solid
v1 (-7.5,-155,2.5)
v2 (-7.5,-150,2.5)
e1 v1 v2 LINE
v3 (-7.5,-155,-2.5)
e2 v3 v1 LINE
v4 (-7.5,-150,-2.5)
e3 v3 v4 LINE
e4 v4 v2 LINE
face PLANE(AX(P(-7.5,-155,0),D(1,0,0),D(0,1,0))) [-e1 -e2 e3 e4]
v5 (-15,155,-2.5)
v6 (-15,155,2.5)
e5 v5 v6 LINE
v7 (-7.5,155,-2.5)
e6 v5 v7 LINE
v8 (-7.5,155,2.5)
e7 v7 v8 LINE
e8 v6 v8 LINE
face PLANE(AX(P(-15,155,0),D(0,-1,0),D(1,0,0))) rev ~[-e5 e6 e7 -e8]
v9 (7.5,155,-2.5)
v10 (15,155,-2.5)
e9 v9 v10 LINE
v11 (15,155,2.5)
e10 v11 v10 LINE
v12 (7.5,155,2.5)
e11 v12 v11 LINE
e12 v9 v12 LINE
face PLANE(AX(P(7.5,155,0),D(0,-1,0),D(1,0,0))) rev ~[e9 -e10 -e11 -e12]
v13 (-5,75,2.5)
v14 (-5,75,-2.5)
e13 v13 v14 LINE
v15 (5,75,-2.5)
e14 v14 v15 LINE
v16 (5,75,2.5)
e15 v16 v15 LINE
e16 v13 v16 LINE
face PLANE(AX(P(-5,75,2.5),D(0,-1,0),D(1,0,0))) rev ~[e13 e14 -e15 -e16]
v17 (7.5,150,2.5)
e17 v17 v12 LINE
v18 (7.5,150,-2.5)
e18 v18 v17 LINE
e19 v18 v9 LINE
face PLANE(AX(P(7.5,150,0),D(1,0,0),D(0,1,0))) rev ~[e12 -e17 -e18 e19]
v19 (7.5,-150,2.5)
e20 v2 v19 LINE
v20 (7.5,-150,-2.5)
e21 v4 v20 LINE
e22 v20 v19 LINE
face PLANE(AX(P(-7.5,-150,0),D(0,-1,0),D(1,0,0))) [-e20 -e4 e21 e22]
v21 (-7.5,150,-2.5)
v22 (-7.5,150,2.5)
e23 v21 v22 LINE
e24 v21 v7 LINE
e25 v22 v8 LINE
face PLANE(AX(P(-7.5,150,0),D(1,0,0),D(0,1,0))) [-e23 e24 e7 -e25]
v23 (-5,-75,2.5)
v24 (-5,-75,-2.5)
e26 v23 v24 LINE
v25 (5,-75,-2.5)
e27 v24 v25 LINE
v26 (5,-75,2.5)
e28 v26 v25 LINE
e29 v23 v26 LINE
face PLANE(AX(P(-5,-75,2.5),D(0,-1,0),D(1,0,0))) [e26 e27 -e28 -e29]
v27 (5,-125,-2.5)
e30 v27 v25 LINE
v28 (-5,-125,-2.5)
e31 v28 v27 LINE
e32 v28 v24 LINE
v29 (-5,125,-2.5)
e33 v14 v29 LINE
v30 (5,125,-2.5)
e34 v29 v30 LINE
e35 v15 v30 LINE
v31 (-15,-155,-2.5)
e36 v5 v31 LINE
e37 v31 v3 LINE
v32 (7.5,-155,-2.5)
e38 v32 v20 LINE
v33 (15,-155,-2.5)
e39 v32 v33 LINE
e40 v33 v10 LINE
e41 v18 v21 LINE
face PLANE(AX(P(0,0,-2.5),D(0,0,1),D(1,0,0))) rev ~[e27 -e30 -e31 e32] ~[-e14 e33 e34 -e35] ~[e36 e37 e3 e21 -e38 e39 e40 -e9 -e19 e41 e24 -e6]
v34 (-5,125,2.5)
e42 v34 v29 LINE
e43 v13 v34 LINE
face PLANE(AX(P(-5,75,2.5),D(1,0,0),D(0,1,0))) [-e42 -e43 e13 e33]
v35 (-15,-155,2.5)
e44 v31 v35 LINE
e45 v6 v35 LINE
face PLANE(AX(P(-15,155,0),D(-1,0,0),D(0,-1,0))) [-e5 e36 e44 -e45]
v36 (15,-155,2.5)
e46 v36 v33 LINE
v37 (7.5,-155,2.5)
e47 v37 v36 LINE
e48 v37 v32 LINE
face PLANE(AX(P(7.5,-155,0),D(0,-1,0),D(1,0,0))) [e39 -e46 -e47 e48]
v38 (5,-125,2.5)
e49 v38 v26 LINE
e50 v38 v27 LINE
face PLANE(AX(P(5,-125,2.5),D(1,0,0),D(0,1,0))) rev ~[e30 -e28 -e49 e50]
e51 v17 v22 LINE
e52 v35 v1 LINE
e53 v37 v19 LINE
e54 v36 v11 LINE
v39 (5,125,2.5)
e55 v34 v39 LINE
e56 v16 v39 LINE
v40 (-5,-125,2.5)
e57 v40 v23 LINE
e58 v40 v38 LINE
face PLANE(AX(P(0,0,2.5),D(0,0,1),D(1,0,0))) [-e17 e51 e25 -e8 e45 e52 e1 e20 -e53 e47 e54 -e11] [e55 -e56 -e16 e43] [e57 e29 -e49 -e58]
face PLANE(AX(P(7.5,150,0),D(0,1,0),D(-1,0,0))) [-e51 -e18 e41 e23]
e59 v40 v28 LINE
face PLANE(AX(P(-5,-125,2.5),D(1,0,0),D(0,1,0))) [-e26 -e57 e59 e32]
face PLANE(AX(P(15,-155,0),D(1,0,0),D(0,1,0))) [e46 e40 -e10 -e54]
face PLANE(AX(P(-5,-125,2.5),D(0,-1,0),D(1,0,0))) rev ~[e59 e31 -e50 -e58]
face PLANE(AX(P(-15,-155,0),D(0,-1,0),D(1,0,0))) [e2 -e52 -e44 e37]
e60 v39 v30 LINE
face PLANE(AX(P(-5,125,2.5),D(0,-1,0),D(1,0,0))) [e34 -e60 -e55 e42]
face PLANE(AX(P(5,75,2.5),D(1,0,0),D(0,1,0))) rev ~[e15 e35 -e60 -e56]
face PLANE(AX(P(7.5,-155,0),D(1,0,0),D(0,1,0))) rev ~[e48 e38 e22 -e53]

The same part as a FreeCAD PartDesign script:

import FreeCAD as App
import Part
import Sketcher
Q = App.Units.Quantity


def add_polygon(sketch, points):
    """Adds a closed chain of lines whose ends are joined by coincident constraints."""
    first, n = sketch.GeometryCount, len(points)
    for a, b in zip(points, points[1:] + points[:1]):
        sketch.addGeometry(Part.LineSegment(App.Vector(*a, 0), App.Vector(*b, 0)), False)
    for i in range(n):
        sketch.addConstraint(Sketcher.Constraint("Coincident", first + i, 2, first + (i + 1) % n, 1))

doc = App.newDocument("Part")
params = doc.addObject("Spreadsheet::Sheet", "Params")
for row, (alias, value) in enumerate([
    ("sketch1_width", "15 mm"),
    ("sketch1_height", "5 mm"),
    ("sketch1_height2", "310 mm"),
    ("sketch1_width2", "7.5 mm"),
    ("pad1_length", "5 mm"),
    ("sketch2_width", "10 mm"),
    ("sketch2_height", "50 mm"),
    ("pocket1_length", "10 mm"),
    ("sketch3_width", "10 mm"),
    ("sketch3_height", "50 mm"),
    ("pocket2_length", "10 mm"),
], start=1):
    params.set(f"A{row}", alias)
    params.set(f"B{row}", "=" + value)
    params.setAlias(f"B{row}", alias)

body = doc.addObject("PartDesign::Body", "Body")

sketch1 = body.newObject("Sketcher::SketchObject", "Sketch")
sketch1.AttachmentSupport = (doc.getObject("XY_Plane"), [""])
sketch1.MapMode = "FlatFace"
add_polygon(sketch1, [(15, 155), (8, 155), (8, 150), (-8, 150), (-8, 155), (-15, 155), (-15, -155), (-8, -155), (-8, -150), (8, -150), (8, -155), (15, -155)])
sketch1.addConstraint([
    Sketcher.Constraint("Horizontal", 0),
    Sketcher.Constraint("Vertical", 1),
    Sketcher.Constraint("Horizontal", 2),
    Sketcher.Constraint("Vertical", 3),
    Sketcher.Constraint("Horizontal", 4),
    Sketcher.Constraint("Vertical", 5),
    Sketcher.Constraint("Horizontal", 6),
    Sketcher.Constraint("Vertical", 7),
    Sketcher.Constraint("Horizontal", 8),
    Sketcher.Constraint("Vertical", 9),
    Sketcher.Constraint("Horizontal", 10),
    Sketcher.Constraint("Vertical", 11),
    Sketcher.Constraint("Symmetric", 0, 2, 6, 2, -1, 1),
    Sketcher.Constraint("Symmetric", 2, 2, 8, 2, -1, 1),
    Sketcher.Constraint("Symmetric", 4, 2, 10, 2, -1, 1),
    Sketcher.Constraint("Symmetric", 0, 2, 3, 2, -2),
    Sketcher.Constraint("DistanceX", 2, 2, 2, 1, Q("15 mm")),
    Sketcher.Constraint("DistanceY", 1, 2, 1, 1, Q("5 mm")),
    Sketcher.Constraint("DistanceY", 5, 2, 5, 1, Q("310 mm")),
    Sketcher.Constraint("DistanceX", 0, 2, 0, 1, Q("7.5 mm")),
])
sketch1.setExpression("Constraints[28]", "Params.sketch1_width")
sketch1.setExpression("Constraints[29]", "Params.sketch1_height")
sketch1.setExpression("Constraints[30]", "Params.sketch1_height2")
sketch1.setExpression("Constraints[31]", "Params.sketch1_width2")
pad1 = body.newObject("PartDesign::Pad", "Pad")
pad1.Profile = sketch1
pad1.setExpression("Length", "Params.pad1_length")
pad1.Midplane = True

sketch2 = body.newObject("Sketcher::SketchObject", "Sketch001")
sketch2.AttachmentSupport = (doc.getObject("XY_Plane"), [""])
sketch2.MapMode = "FlatFace"
sketch2.AttachmentOffset = App.Placement(App.Vector(0, 0, 2.5), App.Rotation())
add_polygon(sketch2, [(-5, -75), (-5, -125), (5, -125), (5, -75)])
sketch2.addConstraint([
    Sketcher.Constraint("Vertical", 0),
    Sketcher.Constraint("Horizontal", 1),
    Sketcher.Constraint("Vertical", 2),
    Sketcher.Constraint("Horizontal", 3),
    Sketcher.Constraint("DistanceX", 1, 1, 1, 2, Q("10 mm")),
    Sketcher.Constraint("DistanceY", 0, 2, 0, 1, Q("50 mm")),
    Sketcher.Constraint("DistanceX", 0, 2, -1, 1, Q("5 mm")),
    Sketcher.Constraint("DistanceY", 0, 2, -1, 1, Q("125 mm")),
])
sketch2.setExpression("Constraints[8]", "Params.sketch2_width")
sketch2.setExpression("Constraints[9]", "Params.sketch2_height")
pocket1 = body.newObject("PartDesign::Pocket", "Pocket")
pocket1.Profile = sketch2
pocket1.setExpression("Length", "Params.pocket1_length")

sketch3 = body.newObject("Sketcher::SketchObject", "Sketch002")
sketch3.AttachmentSupport = (doc.getObject("XY_Plane"), [""])
sketch3.MapMode = "FlatFace"
sketch3.AttachmentOffset = App.Placement(App.Vector(0, 0, 2.5), App.Rotation())
add_polygon(sketch3, [(-5, 125), (-5, 75), (5, 75), (5, 125)])
sketch3.addConstraint([
    Sketcher.Constraint("Vertical", 0),
    Sketcher.Constraint("Horizontal", 1),
    Sketcher.Constraint("Vertical", 2),
    Sketcher.Constraint("Horizontal", 3),
    Sketcher.Constraint("DistanceX", 1, 1, 1, 2, Q("10 mm")),
    Sketcher.Constraint("DistanceY", 0, 2, 0, 1, Q("50 mm")),
    Sketcher.Constraint("DistanceX", 0, 2, -1, 1, Q("5 mm")),
    Sketcher.Constraint("DistanceY", -1, 1, 0, 2, Q("75 mm")),
])
sketch3.setExpression("Constraints[8]", "Params.sketch3_width")
sketch3.setExpression("Constraints[9]", "Params.sketch3_height")
pocket2 = body.newObject("PartDesign::Pocket", "Pocket001")
pocket2.Profile = sketch3
pocket2.setExpression("Length", "Params.pocket2_length")

doc.recompute()
